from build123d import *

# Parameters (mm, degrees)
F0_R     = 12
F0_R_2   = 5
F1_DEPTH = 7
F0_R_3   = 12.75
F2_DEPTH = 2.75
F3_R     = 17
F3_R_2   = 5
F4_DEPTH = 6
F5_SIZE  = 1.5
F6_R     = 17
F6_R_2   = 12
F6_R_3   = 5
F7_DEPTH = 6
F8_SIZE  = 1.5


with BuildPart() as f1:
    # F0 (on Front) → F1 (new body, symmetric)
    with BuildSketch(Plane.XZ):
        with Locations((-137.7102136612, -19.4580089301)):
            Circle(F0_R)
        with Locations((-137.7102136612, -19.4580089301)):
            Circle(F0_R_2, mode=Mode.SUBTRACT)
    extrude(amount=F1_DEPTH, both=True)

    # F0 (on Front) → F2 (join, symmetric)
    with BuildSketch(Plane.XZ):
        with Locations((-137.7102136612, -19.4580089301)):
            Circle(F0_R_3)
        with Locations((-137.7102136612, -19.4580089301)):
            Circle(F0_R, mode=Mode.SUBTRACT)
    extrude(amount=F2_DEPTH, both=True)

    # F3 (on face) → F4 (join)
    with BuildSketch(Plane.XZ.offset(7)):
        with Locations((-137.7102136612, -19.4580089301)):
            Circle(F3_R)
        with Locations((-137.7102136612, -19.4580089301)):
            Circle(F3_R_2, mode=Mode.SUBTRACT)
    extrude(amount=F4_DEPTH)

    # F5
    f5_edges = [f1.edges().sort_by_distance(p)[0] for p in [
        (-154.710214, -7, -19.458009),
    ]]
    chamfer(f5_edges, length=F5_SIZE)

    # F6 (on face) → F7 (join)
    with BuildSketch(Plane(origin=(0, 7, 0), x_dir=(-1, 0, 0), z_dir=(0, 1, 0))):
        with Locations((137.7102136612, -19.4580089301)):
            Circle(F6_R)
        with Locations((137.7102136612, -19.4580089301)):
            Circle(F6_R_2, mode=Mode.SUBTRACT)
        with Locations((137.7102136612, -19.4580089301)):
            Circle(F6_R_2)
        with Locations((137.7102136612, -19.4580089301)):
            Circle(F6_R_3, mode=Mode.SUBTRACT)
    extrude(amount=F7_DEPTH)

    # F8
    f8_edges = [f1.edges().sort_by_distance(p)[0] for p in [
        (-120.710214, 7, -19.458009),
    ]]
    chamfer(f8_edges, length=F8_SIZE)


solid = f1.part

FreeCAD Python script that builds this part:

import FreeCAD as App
import Part
import Sketcher
from FreeCAD import Vector
Q = App.Units.Quantity


def edges_at(feature, points):
    """Names of the edges that pass closest to the given points."""
    edges = feature.Shape.Edges
    near = lambda p: min(range(len(edges)), key=lambda i: edges[i].distToShape(Part.Vertex(*p))[0])
    return sorted({f"Edge{near(p) + 1}" for p in points})

doc = App.newDocument("Part")
body = doc.addObject("PartDesign::Body", "Body")

# Sketch on XZ plane
sketch1 = body.newObject("Sketcher::SketchObject", "Sketch")
sketch1.AttachmentSupport = (doc.getObject("XZ_Plane"), [""])
sketch1.MapMode = "FlatFace"
sketch1.addGeometry([
    Part.Circle(Vector(-138, -19, 0), Vector(0, 0, 1), 12),
    Part.Circle(Vector(-138, -19, 0), Vector(0, 0, 1), 5),
], False)
sketch1.addConstraint([
    Sketcher.Constraint("Coincident", 1, 3, 0, 3),
    Sketcher.Constraint("Diameter", 0, Q("24 mm")),
    Sketcher.Constraint("Diameter", 1, Q("10 mm")),
    Sketcher.Constraint("DistanceY", 0, 3, -1, 1, Q("19.458009 mm")),
    Sketcher.Constraint("DistanceX", 0, 3, -1, 1, Q("137.710214 mm")),
])
pad1 = body.newObject("PartDesign::Pad", "Pad")
pad1.Profile = sketch1
pad1.Length = 14
pad1.Midplane = True

# Sketch on XZ plane
sketch2 = body.newObject("Sketcher::SketchObject", "Sketch001")
sketch2.AttachmentSupport = (doc.getObject("XZ_Plane"), [""])
sketch2.MapMode = "FlatFace"
sketch2.addGeometry([
    Part.Circle(Vector(-138, -19, 0), Vector(0, 0, 1), 13),
    Part.Circle(Vector(-138, -19, 0), Vector(0, 0, 1), 12),
], False)
sketch2.addConstraint([
    Sketcher.Constraint("Coincident", 1, 3, 0, 3),
    Sketcher.Constraint("Diameter", 1, Q("24 mm")),
    Sketcher.Constraint("Diameter", 0, Q("25.5 mm")),
    Sketcher.Constraint("DistanceY", 0, 3, -1, 1, Q("19.458009 mm")),
    Sketcher.Constraint("DistanceX", 0, 3, -1, 1, Q("137.710214 mm")),
])
pad2 = body.newObject("PartDesign::Pad", "Pad001")
pad2.Profile = sketch2
pad2.Length = 5.5
pad2.Midplane = True

# Sketch on XZ plane
sketch3 = body.newObject("Sketcher::SketchObject", "Sketch002")
sketch3.AttachmentSupport = (doc.getObject("XZ_Plane"), [""])
sketch3.MapMode = "FlatFace"
sketch3.AttachmentOffset = App.Placement(Vector(0, 0, 7), App.Rotation())
sketch3.addGeometry([
    Part.Circle(Vector(-138, -19, 0), Vector(0, 0, 1), 17),
    Part.Circle(Vector(-138, -19, 0), Vector(0, 0, 1), 5),
], False)
sketch3.addConstraint([
    Sketcher.Constraint("Coincident", 1, 3, 0, 3),
    Sketcher.Constraint("Diameter", 0, Q("34 mm")),
    Sketcher.Constraint("Diameter", 1, Q("10 mm")),
    Sketcher.Constraint("DistanceY", 0, 3, -1, 1, Q("19.458009 mm")),
    Sketcher.Constraint("DistanceX", 0, 3, -1, 1, Q("137.710214 mm")),
])
pad3 = body.newObject("PartDesign::Pad", "Pad002")
pad3.Profile = sketch3
pad3.Length = 6
doc.recompute()

chamfer = body.newObject("PartDesign::Chamfer", "Chamfer")
chamfer.Base = (pad3, edges_at(pad3, [(-154.71, -7, -19.458)]))
chamfer.Size = 1.5

# Sketch on XZ plane
sketch4 = body.newObject("Sketcher::SketchObject", "Sketch003")
sketch4.AttachmentSupport = (doc.getObject("XZ_Plane"), [""])
sketch4.MapMode = "FlatFace"
sketch4.AttachmentOffset = App.Placement(Vector(0, 0, -7), App.Rotation())
sketch4.addGeometry([
    Part.Circle(Vector(-138, -19, 0), Vector(0, 0, 1), 17),
    Part.Circle(Vector(-138, -19, 0), Vector(0, 0, 1), 5),
], False)
sketch4.addConstraint([
    Sketcher.Constraint("Coincident", 1, 3, 0, 3),
    Sketcher.Constraint("Diameter", 0, Q("34 mm")),
    Sketcher.Constraint("Diameter", 1, Q("10 mm")),
    Sketcher.Constraint("DistanceY", 0, 3, -1, 1, Q("19.458009 mm")),
    Sketcher.Constraint("DistanceX", 0, 3, -1, 1, Q("137.710214 mm")),
])
pad4 = body.newObject("PartDesign::Pad", "Pad003")
pad4.Profile = sketch4
pad4.Length = 6
pad4.Reversed = True
doc.recompute()

chamfer2 = body.newObject("PartDesign::Chamfer", "Chamfer001")
chamfer2.Base = (pad4, edges_at(pad4, [(-120.71, 7, -19.458)]))
chamfer2.Size = 1.5

doc.recompute()
